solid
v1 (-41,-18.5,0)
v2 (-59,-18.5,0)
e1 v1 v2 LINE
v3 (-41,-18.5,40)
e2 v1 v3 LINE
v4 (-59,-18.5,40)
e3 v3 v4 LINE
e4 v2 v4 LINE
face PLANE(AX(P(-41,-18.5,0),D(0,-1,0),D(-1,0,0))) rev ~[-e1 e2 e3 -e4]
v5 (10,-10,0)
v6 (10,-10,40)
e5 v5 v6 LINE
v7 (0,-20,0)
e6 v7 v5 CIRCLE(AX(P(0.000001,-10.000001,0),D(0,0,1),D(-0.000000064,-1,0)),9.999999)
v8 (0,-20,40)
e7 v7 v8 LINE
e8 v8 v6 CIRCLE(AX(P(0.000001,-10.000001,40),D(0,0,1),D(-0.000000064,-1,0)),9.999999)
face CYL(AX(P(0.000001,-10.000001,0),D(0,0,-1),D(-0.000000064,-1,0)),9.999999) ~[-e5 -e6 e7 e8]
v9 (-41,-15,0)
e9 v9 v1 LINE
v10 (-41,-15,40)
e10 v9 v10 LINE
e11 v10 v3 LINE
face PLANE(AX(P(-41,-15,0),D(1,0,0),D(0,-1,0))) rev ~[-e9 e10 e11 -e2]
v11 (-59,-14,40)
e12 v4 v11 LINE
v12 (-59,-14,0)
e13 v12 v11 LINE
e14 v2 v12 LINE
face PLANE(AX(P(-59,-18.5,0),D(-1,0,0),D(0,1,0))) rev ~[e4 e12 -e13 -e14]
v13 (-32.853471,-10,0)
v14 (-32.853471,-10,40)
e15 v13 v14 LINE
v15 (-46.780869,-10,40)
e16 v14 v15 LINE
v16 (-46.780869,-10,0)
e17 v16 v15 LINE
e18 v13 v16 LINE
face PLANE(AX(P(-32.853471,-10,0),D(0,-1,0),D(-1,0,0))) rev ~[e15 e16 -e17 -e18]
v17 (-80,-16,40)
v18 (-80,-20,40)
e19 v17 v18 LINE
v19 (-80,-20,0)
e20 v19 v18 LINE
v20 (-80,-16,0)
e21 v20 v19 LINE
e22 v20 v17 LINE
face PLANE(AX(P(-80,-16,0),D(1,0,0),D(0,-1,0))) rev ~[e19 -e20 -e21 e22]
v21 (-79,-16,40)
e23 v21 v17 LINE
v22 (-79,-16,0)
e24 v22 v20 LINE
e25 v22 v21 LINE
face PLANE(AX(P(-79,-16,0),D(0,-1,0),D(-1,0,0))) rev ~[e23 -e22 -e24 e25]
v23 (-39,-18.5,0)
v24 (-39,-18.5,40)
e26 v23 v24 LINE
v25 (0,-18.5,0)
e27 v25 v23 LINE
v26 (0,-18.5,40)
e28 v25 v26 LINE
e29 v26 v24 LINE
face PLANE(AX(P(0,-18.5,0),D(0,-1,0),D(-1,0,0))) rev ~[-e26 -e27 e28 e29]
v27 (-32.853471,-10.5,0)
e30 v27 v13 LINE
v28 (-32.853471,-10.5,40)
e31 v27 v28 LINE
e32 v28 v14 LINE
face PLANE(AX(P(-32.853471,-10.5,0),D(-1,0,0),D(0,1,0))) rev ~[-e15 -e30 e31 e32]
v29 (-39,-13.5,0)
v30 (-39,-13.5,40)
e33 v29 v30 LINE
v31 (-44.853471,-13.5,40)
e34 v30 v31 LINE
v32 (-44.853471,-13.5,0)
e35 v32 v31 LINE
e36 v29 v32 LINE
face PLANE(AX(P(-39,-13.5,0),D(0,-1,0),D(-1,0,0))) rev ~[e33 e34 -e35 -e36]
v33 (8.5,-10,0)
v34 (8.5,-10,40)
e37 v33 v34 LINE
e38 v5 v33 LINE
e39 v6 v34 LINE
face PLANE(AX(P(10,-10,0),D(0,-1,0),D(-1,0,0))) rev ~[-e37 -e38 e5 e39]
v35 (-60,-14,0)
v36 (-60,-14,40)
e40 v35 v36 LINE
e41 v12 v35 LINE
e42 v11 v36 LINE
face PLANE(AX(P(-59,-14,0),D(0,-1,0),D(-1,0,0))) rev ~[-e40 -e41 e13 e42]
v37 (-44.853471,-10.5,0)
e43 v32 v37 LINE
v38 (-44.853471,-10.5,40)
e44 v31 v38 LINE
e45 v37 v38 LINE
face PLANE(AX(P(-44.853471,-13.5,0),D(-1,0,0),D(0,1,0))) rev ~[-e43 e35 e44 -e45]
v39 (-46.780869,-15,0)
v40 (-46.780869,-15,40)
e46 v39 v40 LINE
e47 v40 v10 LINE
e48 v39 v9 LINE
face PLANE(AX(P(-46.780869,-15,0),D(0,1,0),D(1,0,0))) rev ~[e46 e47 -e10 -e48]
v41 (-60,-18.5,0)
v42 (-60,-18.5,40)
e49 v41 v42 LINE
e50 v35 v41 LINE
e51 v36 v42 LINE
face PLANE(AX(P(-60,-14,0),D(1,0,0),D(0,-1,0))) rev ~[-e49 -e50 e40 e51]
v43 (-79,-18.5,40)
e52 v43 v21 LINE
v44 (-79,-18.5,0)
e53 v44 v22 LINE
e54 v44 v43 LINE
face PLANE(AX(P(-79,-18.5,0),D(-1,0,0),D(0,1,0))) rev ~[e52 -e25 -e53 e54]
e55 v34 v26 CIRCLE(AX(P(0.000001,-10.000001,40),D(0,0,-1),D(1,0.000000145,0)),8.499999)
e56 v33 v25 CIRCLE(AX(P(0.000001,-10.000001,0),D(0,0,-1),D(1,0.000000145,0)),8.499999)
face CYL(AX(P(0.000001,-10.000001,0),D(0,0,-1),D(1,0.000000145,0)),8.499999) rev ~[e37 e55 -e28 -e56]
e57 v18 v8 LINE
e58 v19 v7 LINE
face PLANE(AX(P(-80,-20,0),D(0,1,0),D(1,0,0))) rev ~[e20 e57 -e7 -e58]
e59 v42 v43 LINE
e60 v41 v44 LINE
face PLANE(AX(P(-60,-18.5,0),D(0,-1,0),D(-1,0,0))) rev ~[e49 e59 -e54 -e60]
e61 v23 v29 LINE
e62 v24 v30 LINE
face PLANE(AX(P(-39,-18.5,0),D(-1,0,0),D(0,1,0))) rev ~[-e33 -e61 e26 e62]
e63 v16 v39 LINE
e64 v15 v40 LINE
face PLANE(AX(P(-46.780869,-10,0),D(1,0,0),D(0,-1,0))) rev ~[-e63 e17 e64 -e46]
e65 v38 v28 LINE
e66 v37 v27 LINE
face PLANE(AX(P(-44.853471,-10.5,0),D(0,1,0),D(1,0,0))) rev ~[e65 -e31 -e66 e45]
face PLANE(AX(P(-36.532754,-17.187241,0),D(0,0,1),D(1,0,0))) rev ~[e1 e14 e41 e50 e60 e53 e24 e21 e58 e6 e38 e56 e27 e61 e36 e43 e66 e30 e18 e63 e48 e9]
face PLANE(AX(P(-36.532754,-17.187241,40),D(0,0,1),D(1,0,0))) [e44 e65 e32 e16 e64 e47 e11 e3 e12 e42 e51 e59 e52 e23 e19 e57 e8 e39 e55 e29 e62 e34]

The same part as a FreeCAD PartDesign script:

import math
import FreeCAD as App
import Part
import Sketcher
from FreeCAD import Vector

doc = App.newDocument("Part")
body = doc.addObject("PartDesign::Body", "Body")

sketch1 = doc.addObject("Sketcher::SketchObject", "Sketch")
body.addObject(sketch1)
sketch1.AttachmentSupport = (doc.XY_Plane, [""])
sketch1.MapMode = "FlatFace"
sketch1.addGeometry(Part.LineSegment(Vector(-80, -20, 0), Vector(0, -20, 0)), False)
sketch1.addGeometry(Part.ArcOfCircle(Part.Circle(Vector(0, -10, 0), Vector(0, 0, 1), 10), math.radians(-90), math.radians(0)), False)
sketch1.addGeometry(Part.LineSegment(Vector(10, -10, 0), Vector(8.5, -10, 0)), False)
sketch1.addGeometry(Part.ArcOfCircle(Part.Circle(Vector(0, -10, 0), Vector(0, 0, 1), 8.5), math.radians(-90), math.radians(0)), False)
sketch1.addGeometry(Part.LineSegment(Vector(0, -18.5, 0), Vector(-39, -18.5, 0)), False)
sketch1.addGeometry(Part.LineSegment(Vector(-39, -18.5, 0), Vector(-39, -13.5, 0)), False)
sketch1.addGeometry(Part.LineSegment(Vector(-39, -13.5, 0), Vector(-44.9, -13.5, 0)), False)
sketch1.addGeometry(Part.LineSegment(Vector(-44.9, -13.5, 0), Vector(-44.9, -10.5, 0)), False)
sketch1.addGeometry(Part.LineSegment(Vector(-44.9, -10.5, 0), Vector(-32.9, -10.5, 0)), False)
sketch1.addGeometry(Part.LineSegment(Vector(-32.9, -10.5, 0), Vector(-32.9, -10, 0)), False)
sketch1.addGeometry(Part.LineSegment(Vector(-32.9, -10, 0), Vector(-46.8, -10, 0)), False)
sketch1.addGeometry(Part.LineSegment(Vector(-46.8, -10, 0), Vector(-46.8, -15, 0)), False)
sketch1.addGeometry(Part.LineSegment(Vector(-46.8, -15, 0), Vector(-41, -15, 0)), False)
sketch1.addGeometry(Part.LineSegment(Vector(-41, -15, 0), Vector(-41, -18.5, 0)), False)
sketch1.addGeometry(Part.LineSegment(Vector(-41, -18.5, 0), Vector(-59, -18.5, 0)), False)
sketch1.addGeometry(Part.LineSegment(Vector(-59, -18.5, 0), Vector(-59, -14, 0)), False)
sketch1.addGeometry(Part.LineSegment(Vector(-59, -14, 0), Vector(-60, -14, 0)), False)
sketch1.addGeometry(Part.LineSegment(Vector(-60, -14, 0), Vector(-60, -18.5, 0)), False)
sketch1.addGeometry(Part.LineSegment(Vector(-60, -18.5, 0), Vector(-79, -18.5, 0)), False)
sketch1.addGeometry(Part.LineSegment(Vector(-79, -18.5, 0), Vector(-79, -16, 0)), False)
sketch1.addGeometry(Part.LineSegment(Vector(-79, -16, 0), Vector(-80, -16, 0)), False)
sketch1.addGeometry(Part.LineSegment(Vector(-80, -16, 0), Vector(-80, -20, 0)), False)
sketch1.addConstraint(Sketcher.Constraint("Tangent", 0, 2, 1, 1))
sketch1.addConstraint(Sketcher.Constraint("Coincident", 1, 2, 2, 1))
sketch1.addConstraint(Sketcher.Constraint("Coincident", 2, 2, 3, 2))
sketch1.addConstraint(Sketcher.Constraint("Tangent", 3, 1, 4, 1))
sketch1.addConstraint(Sketcher.Constraint("Coincident", 4, 2, 5, 1))
sketch1.addConstraint(Sketcher.Constraint("Coincident", 5, 2, 6, 1))
sketch1.addConstraint(Sketcher.Constraint("Coincident", 6, 2, 7, 1))
sketch1.addConstraint(Sketcher.Constraint("Coincident", 7, 2, 8, 1))
sketch1.addConstraint(Sketcher.Constraint("Coincident", 8, 2, 9, 1))
sketch1.addConstraint(Sketcher.Constraint("Coincident", 9, 2, 10, 1))
sketch1.addConstraint(Sketcher.Constraint("Coincident", 10, 2, 11, 1))
sketch1.addConstraint(Sketcher.Constraint("Coincident", 11, 2, 12, 1))
sketch1.addConstraint(Sketcher.Constraint("Coincident", 12, 2, 13, 1))
sketch1.addConstraint(Sketcher.Constraint("Coincident", 13, 2, 14, 1))
sketch1.addConstraint(Sketcher.Constraint("Coincident", 14, 2, 15, 1))
sketch1.addConstraint(Sketcher.Constraint("Coincident", 15, 2, 16, 1))
sketch1.addConstraint(Sketcher.Constraint("Coincident", 16, 2, 17, 1))
sketch1.addConstraint(Sketcher.Constraint("Coincident", 17, 2, 18, 1))
sketch1.addConstraint(Sketcher.Constraint("Coincident", 18, 2, 19, 1))
sketch1.addConstraint(Sketcher.Constraint("Coincident", 19, 2, 20, 1))
sketch1.addConstraint(Sketcher.Constraint("Coincident", 20, 2, 21, 1))
sketch1.addConstraint(Sketcher.Constraint("Coincident", 21, 2, 0, 1))
sketch1.addConstraint(Sketcher.Constraint("Horizontal", 0))
sketch1.addConstraint(Sketcher.Constraint("Horizontal", 2))
sketch1.addConstraint(Sketcher.Constraint("Horizontal", 4))
sketch1.addConstraint(Sketcher.Constraint("Vertical", 5))
sketch1.addConstraint(Sketcher.Constraint("Horizontal", 6))
sketch1.addConstraint(Sketcher.Constraint("Vertical", 7))
sketch1.addConstraint(Sketcher.Constraint("Horizontal", 8))
sketch1.addConstraint(Sketcher.Constraint("Vertical", 9))
sketch1.addConstraint(Sketcher.Constraint("Horizontal", 10))
sketch1.addConstraint(Sketcher.Constraint("Vertical", 11))
sketch1.addConstraint(Sketcher.Constraint("Horizontal", 12))
sketch1.addConstraint(Sketcher.Constraint("Vertical", 13))
sketch1.addConstraint(Sketcher.Constraint("Horizontal", 14))
sketch1.addConstraint(Sketcher.Constraint("Vertical", 15))
sketch1.addConstraint(Sketcher.Constraint("Horizontal", 16))
sketch1.addConstraint(Sketcher.Constraint("Vertical", 17))
sketch1.addConstraint(Sketcher.Constraint("Horizontal", 18))
sketch1.addConstraint(Sketcher.Constraint("Vertical", 19))
sketch1.addConstraint(Sketcher.Constraint("Horizontal", 20))
sketch1.addConstraint(Sketcher.Constraint("Vertical", 21))
sketch1.addConstraint(Sketcher.Constraint("Coincident", 3, 3, 1, 3))
sketch1.addConstraint(Sketcher.Constraint("PointOnObject", 1, 3, -2))
sketch1.addConstraint(Sketcher.Constraint("Horizontal", 3, 3, 1, 2))
sketch1.addConstraint(Sketcher.Constraint("Horizontal", 2, 2, 9, 2))
sketch1.addConstraint(Sketcher.Constraint("Horizontal", 4, 2, 13, 2))
sketch1.addConstraint(Sketcher.Constraint("Horizontal", 14, 2, 17, 2))
sketch1.addConstraint(Sketcher.Constraint("Equal", 16, 20))
sketch1.addConstraint(Sketcher.Constraint("Equal", 5, 11))
sketch1.addConstraint(Sketcher.Constraint("Radius", 1, 9.999999))
sketch1.addConstraint(Sketcher.Constraint("Radius", 3, 8.499999))
sketch1.addConstraint(Sketcher.Constraint("DistanceX", 0, 1, 0, 2, 80.0))
sketch1.addConstraint(Sketcher.Constraint("DistanceX", 4, 2, 4, 1, 39.0))
sketch1.addConstraint(Sketcher.Constraint("DistanceX", 8, 1, 8, 2, 12.0))
sketch1.addConstraint(Sketcher.Constraint("DistanceX", 14, 2, 14, 1, 18.0))
sketch1.addConstraint(Sketcher.Constraint("DistanceX", 16, 2, 16, 1, 1.0))
sketch1.addConstraint(Sketcher.Constraint("DistanceX", 18, 2, 18, 1, 19.0))
sketch1.addConstraint(Sketcher.Constraint("DistanceY", 5, 1, 5, 2, 5.0))
sketch1.addConstraint(Sketcher.Constraint("DistanceY", 7, 1, 7, 2, 3.0))
sketch1.addConstraint(Sketcher.Constraint("DistanceY", 21, 2, 21, 1, 4.0))
sketch1.addConstraint(Sketcher.Constraint("DistanceY", 15, 1, 15, 2, 4.5))
sketch1.addConstraint(Sketcher.Constraint("DistanceY", 1, 3, -1, 1, 10.000001))
sketch1.addConstraint(Sketcher.Constraint("DistanceX", 10, 2, 10, 1, 13.927398))
sketch1.addConstraint(Sketcher.Constraint("DistanceX", 6, 2, 6, 1, 5.853471))
pad1 = doc.addObject("PartDesign::Pad", "Pad")
body.addObject(pad1)
pad1.Profile = sketch1
pad1.Length = 40

doc.recompute()
